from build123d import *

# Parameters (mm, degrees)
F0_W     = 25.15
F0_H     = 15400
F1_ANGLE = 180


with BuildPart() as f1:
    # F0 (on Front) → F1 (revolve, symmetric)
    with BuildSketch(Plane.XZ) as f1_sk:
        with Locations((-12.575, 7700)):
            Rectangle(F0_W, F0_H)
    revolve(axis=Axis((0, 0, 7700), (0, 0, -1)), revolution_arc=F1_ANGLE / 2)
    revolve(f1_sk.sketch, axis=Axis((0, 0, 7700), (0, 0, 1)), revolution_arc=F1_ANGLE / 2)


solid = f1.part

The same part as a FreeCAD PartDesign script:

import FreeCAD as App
import Part
import Sketcher

doc = App.newDocument("Part")
body = doc.addObject("PartDesign::Body", "Body")

sketch1 = body.newObject("Sketcher::SketchObject", "Sketch")
sketch1.AttachmentSupport = (doc.getObject("XZ_Plane"), [""])
sketch1.MapMode = "FlatFace"
sketch1.addGeometry([
    Part.LineSegment(App.Vector(-25.15, 15400, 0), App.Vector(-25.15, 0, 0)),
    Part.LineSegment(App.Vector(-25.15, 0, 0), App.Vector(0, 0, 0)),
    Part.LineSegment(App.Vector(0, 0, 0), App.Vector(0, 15400, 0)),
    Part.LineSegment(App.Vector(0, 15400, 0), App.Vector(-25.15, 15400, 0)),
], False)
sketch1.addConstraint([
    Sketcher.Constraint("Coincident", 0, 2, 1, 1),
    Sketcher.Constraint("Coincident", 1, 2, 2, 1),
    Sketcher.Constraint("Coincident", 2, 2, 3, 1),
    Sketcher.Constraint("Coincident", 3, 2, 0, 1),
    Sketcher.Constraint("Vertical", 0),
    Sketcher.Constraint("Horizontal", 1),
    Sketcher.Constraint("Vertical", 2),
    Sketcher.Constraint("Horizontal", 3),
    Sketcher.Constraint("Coincident", 1, 2, -1, 1),
    Sketcher.Constraint("DistanceY", 0, 2, 0, 1, 15400.0),
    Sketcher.Constraint("DistanceX", 1, 1, 1, 2, 25.15),
])
revolution = body.newObject("PartDesign::Revolution", "Revolution")
revolution.Profile = sketch1
revolution.ReferenceAxis = (sketch1, ["V_Axis"])
revolution.Angle = 90
revolution.Reversed = True

sketch2 = body.newObject("Sketcher::SketchObject", "Sketch001")
sketch2.AttachmentSupport = (doc.getObject("XZ_Plane"), [""])
sketch2.MapMode = "FlatFace"
sketch2.addGeometry([
    Part.LineSegment(App.Vector(-25.15, 15400, 0), App.Vector(-25.15, 0, 0)),
    Part.LineSegment(App.Vector(-25.15, 0, 0), App.Vector(0, 0, 0)),
    Part.LineSegment(App.Vector(0, 0, 0), App.Vector(0, 15400, 0)),
    Part.LineSegment(App.Vector(0, 15400, 0), App.Vector(-25.15, 15400, 0)),
], False)
sketch2.addConstraint([
    Sketcher.Constraint("Coincident", 0, 2, 1, 1),
    Sketcher.Constraint("Coincident", 1, 2, 2, 1),
    Sketcher.Constraint("Coincident", 2, 2, 3, 1),
    Sketcher.Constraint("Coincident", 3, 2, 0, 1),
    Sketcher.Constraint("Vertical", 0),
    Sketcher.Constraint("Horizontal", 1),
    Sketcher.Constraint("Vertical", 2),
    Sketcher.Constraint("Horizontal", 3),
    Sketcher.Constraint("Coincident", 1, 2, -1, 1),
    Sketcher.Constraint("DistanceY", 0, 2, 0, 1, 15400.0),
    Sketcher.Constraint("DistanceX", 1, 1, 1, 2, 25.15),
])
revolution2 = body.newObject("PartDesign::Revolution", "Revolution001")
revolution2.Profile = sketch2
revolution2.ReferenceAxis = (sketch2, ["V_Axis"])
revolution2.Angle = 90

doc.recompute()
